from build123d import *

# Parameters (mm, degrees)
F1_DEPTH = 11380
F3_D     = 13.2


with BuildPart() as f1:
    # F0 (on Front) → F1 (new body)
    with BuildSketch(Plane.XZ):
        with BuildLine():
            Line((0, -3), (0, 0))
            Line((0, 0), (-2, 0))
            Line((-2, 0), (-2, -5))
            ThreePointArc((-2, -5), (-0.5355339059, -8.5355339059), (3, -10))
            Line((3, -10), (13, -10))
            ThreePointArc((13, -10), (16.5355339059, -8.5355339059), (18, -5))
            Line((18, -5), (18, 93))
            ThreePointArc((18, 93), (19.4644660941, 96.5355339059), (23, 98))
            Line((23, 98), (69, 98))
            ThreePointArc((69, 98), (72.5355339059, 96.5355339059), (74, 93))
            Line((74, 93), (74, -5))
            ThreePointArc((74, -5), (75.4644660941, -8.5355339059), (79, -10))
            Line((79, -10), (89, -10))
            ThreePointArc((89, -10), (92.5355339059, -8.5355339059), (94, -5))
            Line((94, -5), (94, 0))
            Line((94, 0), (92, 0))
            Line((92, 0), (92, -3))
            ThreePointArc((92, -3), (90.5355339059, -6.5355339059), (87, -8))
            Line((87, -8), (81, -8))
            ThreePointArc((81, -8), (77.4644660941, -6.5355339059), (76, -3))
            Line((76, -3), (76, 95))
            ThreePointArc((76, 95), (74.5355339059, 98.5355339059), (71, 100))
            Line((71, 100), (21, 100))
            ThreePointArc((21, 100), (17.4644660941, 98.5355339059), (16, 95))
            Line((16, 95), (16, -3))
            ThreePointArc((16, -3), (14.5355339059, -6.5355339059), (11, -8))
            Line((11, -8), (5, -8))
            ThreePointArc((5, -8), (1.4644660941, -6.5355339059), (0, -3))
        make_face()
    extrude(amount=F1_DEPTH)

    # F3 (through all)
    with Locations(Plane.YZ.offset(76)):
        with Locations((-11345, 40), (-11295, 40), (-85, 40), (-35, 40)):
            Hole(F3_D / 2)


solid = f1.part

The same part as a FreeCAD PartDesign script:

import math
import FreeCAD as App
import Part
import Sketcher
Q = App.Units.Quantity

doc = App.newDocument("Part")
body = doc.addObject("PartDesign::Body", "Body")

# Sketch on XZ plane
sketch1 = doc.addObject("Sketcher::SketchObject", "Sketch")
body.addObject(sketch1)
sketch1.AttachmentSupport = (doc.XZ_Plane, [""])
sketch1.MapMode = "FlatFace"
sketch1.addGeometry([
    Part.LineSegment(App.Vector(0, -3, 0), App.Vector(0, 0, 0)),  # 0
    Part.LineSegment(App.Vector(0, 0, 0), App.Vector(-2, 0, 0)),  # 1
    Part.LineSegment(App.Vector(-2, 0, 0), App.Vector(-2, -5, 0)),  # 2
    Part.ArcOfCircle(Part.Circle(App.Vector(3, -5, 0), App.Vector(0, 0, 1), 5), math.radians(180), math.radians(270)),  # 3
    Part.LineSegment(App.Vector(3, -10, 0), App.Vector(13, -10, 0)),  # 4
    Part.ArcOfCircle(Part.Circle(App.Vector(13, -5, 0), App.Vector(0, 0, 1), 5), math.radians(-90), math.radians(0)),  # 5
    Part.LineSegment(App.Vector(18, -5, 0), App.Vector(18, 93, 0)),  # 6
    Part.ArcOfCircle(Part.Circle(App.Vector(23, 93, 0), App.Vector(0, 0, 1), 5), math.radians(90), math.radians(180)),  # 7
    Part.LineSegment(App.Vector(23, 98, 0), App.Vector(69, 98, 0)),  # 8
    Part.ArcOfCircle(Part.Circle(App.Vector(69, 93, 0), App.Vector(0, 0, 1), 5), math.radians(0), math.radians(90)),  # 9
    Part.LineSegment(App.Vector(74, 93, 0), App.Vector(74, -5, 0)),  # 10
    Part.ArcOfCircle(Part.Circle(App.Vector(79, -5, 0), App.Vector(0, 0, 1), 5), math.radians(180), math.radians(270)),  # 11
    Part.LineSegment(App.Vector(79, -10, 0), App.Vector(89, -10, 0)),  # 12
    Part.ArcOfCircle(Part.Circle(App.Vector(89, -5, 0), App.Vector(0, 0, 1), 5), math.radians(-90), math.radians(0)),  # 13
    Part.LineSegment(App.Vector(94, -5, 0), App.Vector(94, 0, 0)),  # 14
    Part.LineSegment(App.Vector(94, 0, 0), App.Vector(92, 0, 0)),  # 15
    Part.LineSegment(App.Vector(92, 0, 0), App.Vector(92, -3, 0)),  # 16
    Part.ArcOfCircle(Part.Circle(App.Vector(87, -3, 0), App.Vector(0, 0, 1), 5), math.radians(-90), math.radians(0)),  # 17
    Part.LineSegment(App.Vector(87, -8, 0), App.Vector(81, -8, 0)),  # 18
    Part.ArcOfCircle(Part.Circle(App.Vector(81, -3, 0), App.Vector(0, 0, 1), 5), math.radians(180), math.radians(270)),  # 19
    Part.LineSegment(App.Vector(76, -3, 0), App.Vector(76, 95, 0)),  # 20
    Part.ArcOfCircle(Part.Circle(App.Vector(71, 95, 0), App.Vector(0, 0, 1), 5), math.radians(0), math.radians(90)),  # 21
    Part.LineSegment(App.Vector(71, 100, 0), App.Vector(21, 100, 0)),  # 22
    Part.ArcOfCircle(Part.Circle(App.Vector(21, 95, 0), App.Vector(0, 0, 1), 5), math.radians(90), math.radians(180)),  # 23
    Part.LineSegment(App.Vector(16, 95, 0), App.Vector(16, -3, 0)),  # 24
    Part.ArcOfCircle(Part.Circle(App.Vector(11, -3, 0), App.Vector(0, 0, 1), 5), math.radians(-90), math.radians(0)),  # 25
    Part.LineSegment(App.Vector(11, -8, 0), App.Vector(5, -8, 0)),  # 26
    Part.ArcOfCircle(Part.Circle(App.Vector(5, -3, 0), App.Vector(0, 0, 1), 5), math.radians(180), math.radians(270)),  # 27
], False)
sketch1.addConstraint([
    Sketcher.Constraint("Coincident", 0, 2, 1, 1),
    Sketcher.Constraint("Coincident", 1, 2, 2, 1),
    Sketcher.Constraint("Tangent", 2, 2, 3, 1),
    Sketcher.Constraint("Tangent", 3, 2, 4, 1),
    Sketcher.Constraint("Tangent", 4, 2, 5, 1),
    Sketcher.Constraint("Tangent", 5, 2, 6, 1),
    Sketcher.Constraint("Tangent", 6, 2, 7, 2),
    Sketcher.Constraint("Tangent", 7, 1, 8, 1),
    Sketcher.Constraint("Tangent", 8, 2, 9, 2),
    Sketcher.Constraint("Tangent", 9, 1, 10, 1),
    Sketcher.Constraint("Tangent", 10, 2, 11, 1),
    Sketcher.Constraint("Tangent", 11, 2, 12, 1),
    Sketcher.Constraint("Tangent", 12, 2, 13, 1),
    Sketcher.Constraint("Tangent", 13, 2, 14, 1),
    Sketcher.Constraint("Coincident", 14, 2, 15, 1),
    Sketcher.Constraint("Coincident", 15, 2, 16, 1),
    Sketcher.Constraint("Tangent", 16, 2, 17, 2),
    Sketcher.Constraint("Tangent", 17, 1, 18, 1),
    Sketcher.Constraint("Tangent", 18, 2, 19, 2),
    Sketcher.Constraint("Tangent", 19, 1, 20, 1),
    Sketcher.Constraint("Tangent", 20, 2, 21, 1),
    Sketcher.Constraint("Tangent", 21, 2, 22, 1),
    Sketcher.Constraint("Tangent", 22, 2, 23, 1),
    Sketcher.Constraint("Tangent", 23, 2, 24, 1),
    Sketcher.Constraint("Tangent", 24, 2, 25, 2),
    Sketcher.Constraint("Tangent", 25, 1, 26, 1),
    Sketcher.Constraint("Tangent", 26, 2, 27, 2),
    Sketcher.Constraint("Tangent", 27, 1, 0, 1),
    Sketcher.Constraint("Vertical", 0),
    Sketcher.Constraint("Horizontal", 1),
    Sketcher.Constraint("Vertical", 2),
    Sketcher.Constraint("Horizontal", 4),
    Sketcher.Constraint("Vertical", 6),
    Sketcher.Constraint("Horizontal", 8),
    Sketcher.Constraint("Vertical", 10),
    Sketcher.Constraint("Horizontal", 12),
    Sketcher.Constraint("Vertical", 14),
    Sketcher.Constraint("Horizontal", 15),
    Sketcher.Constraint("Vertical", 16),
    Sketcher.Constraint("Horizontal", 18),
    Sketcher.Constraint("Vertical", 20),
    Sketcher.Constraint("Horizontal", 22),
    Sketcher.Constraint("Vertical", 24),
    Sketcher.Constraint("Horizontal", 26),
    Sketcher.Constraint("Coincident", 0, 2, -1, 1),
    Sketcher.Constraint("Equal", 3, 5),
    Sketcher.Constraint("Equal", 5, 7),
    Sketcher.Constraint("Equal", 7, 9),
    Sketcher.Constraint("Equal", 9, 11),
    Sketcher.Constraint("Equal", 11, 13),
    Sketcher.Constraint("Equal", 13, 17),
    Sketcher.Constraint("Equal", 17, 19),
    Sketcher.Constraint("Equal", 19, 21),
    Sketcher.Constraint("Equal", 21, 23),
    Sketcher.Constraint("Equal", 23, 25),
    Sketcher.Constraint("Equal", 25, 27),
    Sketcher.Constraint("PointOnObject", 14, 2, -1),
    Sketcher.Constraint("Horizontal", 5, 3, 11, 3),
    Sketcher.Constraint("Horizontal", 19, 3, 25, 3),
    Sketcher.Constraint("Equal", 4, 12),
    Sketcher.Constraint("Equal", 1, 15),
    Sketcher.Constraint("Equal", 18, 26),
    Sketcher.Constraint("Equal", 10, 20),
    Sketcher.Constraint("Radius", 3, Q("5 mm")),
    Sketcher.Constraint("DistanceX", 1, 2, 1, 1, Q("2 mm")),
    Sketcher.Constraint("DistanceX", 4, 1, 4, 2, Q("10 mm")),
    Sketcher.Constraint("DistanceX", 8, 1, 8, 2, Q("46 mm")),
    Sketcher.Constraint("DistanceX", 18, 2, 18, 1, Q("6 mm")),
    Sketcher.Constraint("DistanceY", 0, 1, 0, 2, Q("3 mm")),
    Sketcher.Constraint("DistanceY", 2, 2, 2, 1, Q("5 mm")),
    Sketcher.Constraint("DistanceY", 6, 1, 6, 2, Q("98 mm")),
])
pad1 = doc.addObject("PartDesign::Pad", "Pad")
body.addObject(pad1)
pad1.Profile = sketch1
pad1.Length = 11380

# Sketch on YZ plane
sketch2 = doc.addObject("Sketcher::SketchObject", "Sketch001")
body.addObject(sketch2)
sketch2.AttachmentSupport = (doc.YZ_Plane, [""])
sketch2.MapMode = "FlatFace"
sketch2.AttachmentOffset = App.Placement(App.Vector(0, 0, 76), App.Rotation())
sketch2.addGeometry([
    Part.Circle(App.Vector(-11345, 40, 0), App.Vector(0, 0, 1), 7),
    Part.Circle(App.Vector(-11295, 40, 0), App.Vector(0, 0, 1), 7),
    Part.Circle(App.Vector(-85, 40, 0), App.Vector(0, 0, 1), 7),
    Part.Circle(App.Vector(-35, 40, 0), App.Vector(0, 0, 1), 7),
], False)
sketch2.addConstraint([
    Sketcher.Constraint("Equal", 0, 1),
    Sketcher.Constraint("Equal", 1, 2),
    Sketcher.Constraint("Equal", 2, 3),
    Sketcher.Constraint("Horizontal", 0, 3, 1, 3),
    Sketcher.Constraint("Horizontal", 1, 3, 2, 3),
    Sketcher.Constraint("Horizontal", 2, 3, 3, 3),
    Sketcher.Constraint("Diameter", 0, Q("13.2 mm")),
    Sketcher.Constraint("DistanceX", 0, 3, -1, 1, Q("11345 mm")),
    Sketcher.Constraint("DistanceY", -1, 1, 0, 3, Q("40 mm")),
    Sketcher.Constraint("DistanceX", 1, 3, -1, 1, Q("11295 mm")),
    Sketcher.Constraint("DistanceX", 2, 3, -1, 1, Q("85 mm")),
    Sketcher.Constraint("DistanceX", 3, 3, -1, 1, Q("35 mm")),
])
doc.recompute()
hole = doc.addObject("PartDesign::Hole", "Hole")
body.addObject(hole)
hole.Profile = sketch2
hole.ThreadType = "None"
hole.Diameter = 13.2
hole.DepthType = "ThroughAll"

doc.recompute()
